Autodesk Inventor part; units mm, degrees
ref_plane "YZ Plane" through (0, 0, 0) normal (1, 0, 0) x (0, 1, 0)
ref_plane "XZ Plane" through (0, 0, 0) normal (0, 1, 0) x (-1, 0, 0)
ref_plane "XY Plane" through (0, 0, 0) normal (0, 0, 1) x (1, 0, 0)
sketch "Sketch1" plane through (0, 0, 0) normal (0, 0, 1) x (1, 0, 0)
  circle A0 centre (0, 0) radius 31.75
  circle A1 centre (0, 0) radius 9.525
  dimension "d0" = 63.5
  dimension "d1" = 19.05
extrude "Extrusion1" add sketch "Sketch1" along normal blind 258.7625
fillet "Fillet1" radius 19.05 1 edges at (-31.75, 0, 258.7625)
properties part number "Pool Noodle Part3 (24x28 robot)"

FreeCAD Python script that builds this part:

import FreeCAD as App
import Part
import Sketcher
Q = App.Units.Quantity


def edges_at(feature, points):
    """Names of the edges that pass closest to the given points."""
    edges = feature.Shape.Edges
    near = lambda p: min(range(len(edges)), key=lambda i: edges[i].distToShape(Part.Vertex(*p))[0])
    return sorted({f"Edge{near(p) + 1}" for p in points})

doc = App.newDocument("Part")
params = doc.addObject("Spreadsheet::Sheet", "Params")
for row, (alias, value) in enumerate([
    ("sketch1_diameter", "2.5 in"),
    ("sketch1_diameter2", "0.75 in"),
    ("pad1_length", "10.1875 in"),
    ("fillet_radius", "0.75 in"),
], start=1):
    params.set(f"A{row}", alias)
    params.set(f"B{row}", "=" + value)
    params.setAlias(f"B{row}", alias)

body = doc.addObject("PartDesign::Body", "Body")

# Sketch on XY plane
sketch1 = doc.addObject("Sketcher::SketchObject", "Sketch")
body.addObject(sketch1)
sketch1.AttachmentSupport = (doc.XY_Plane, [""])
sketch1.MapMode = "FlatFace"
sketch1.addGeometry(Part.Circle(App.Vector(0, 0, 0), App.Vector(0, 0, 1), 32), False)
sketch1.addGeometry(Part.Circle(App.Vector(0, 0, 0), App.Vector(0, 0, 1), 10), False)
sketch1.addConstraint(Sketcher.Constraint("Coincident", 0, 3, -1, 1))
sketch1.addConstraint(Sketcher.Constraint("Coincident", 1, 3, -1, 1))
sketch1.addConstraint(Sketcher.Constraint("Diameter", 0, Q("2.5 in")))
sketch1.addConstraint(Sketcher.Constraint("Diameter", 1, Q("0.75 in")))
sketch1.setExpression("Constraints[2]", "Params.sketch1_diameter")
sketch1.setExpression("Constraints[3]", "Params.sketch1_diameter2")
pad1 = doc.addObject("PartDesign::Pad", "Pad")
body.addObject(pad1)
pad1.Profile = sketch1
pad1.setExpression("Length", "Params.pad1_length")
doc.recompute()

fillet = doc.addObject("PartDesign::Fillet", "Fillet")
body.addObject(fillet)
fillet.Base = (pad1, edges_at(pad1, [(-31.75, 0, 258.762)]))
fillet.setExpression("Radius", "Params.fillet_radius")

doc.recompute()
